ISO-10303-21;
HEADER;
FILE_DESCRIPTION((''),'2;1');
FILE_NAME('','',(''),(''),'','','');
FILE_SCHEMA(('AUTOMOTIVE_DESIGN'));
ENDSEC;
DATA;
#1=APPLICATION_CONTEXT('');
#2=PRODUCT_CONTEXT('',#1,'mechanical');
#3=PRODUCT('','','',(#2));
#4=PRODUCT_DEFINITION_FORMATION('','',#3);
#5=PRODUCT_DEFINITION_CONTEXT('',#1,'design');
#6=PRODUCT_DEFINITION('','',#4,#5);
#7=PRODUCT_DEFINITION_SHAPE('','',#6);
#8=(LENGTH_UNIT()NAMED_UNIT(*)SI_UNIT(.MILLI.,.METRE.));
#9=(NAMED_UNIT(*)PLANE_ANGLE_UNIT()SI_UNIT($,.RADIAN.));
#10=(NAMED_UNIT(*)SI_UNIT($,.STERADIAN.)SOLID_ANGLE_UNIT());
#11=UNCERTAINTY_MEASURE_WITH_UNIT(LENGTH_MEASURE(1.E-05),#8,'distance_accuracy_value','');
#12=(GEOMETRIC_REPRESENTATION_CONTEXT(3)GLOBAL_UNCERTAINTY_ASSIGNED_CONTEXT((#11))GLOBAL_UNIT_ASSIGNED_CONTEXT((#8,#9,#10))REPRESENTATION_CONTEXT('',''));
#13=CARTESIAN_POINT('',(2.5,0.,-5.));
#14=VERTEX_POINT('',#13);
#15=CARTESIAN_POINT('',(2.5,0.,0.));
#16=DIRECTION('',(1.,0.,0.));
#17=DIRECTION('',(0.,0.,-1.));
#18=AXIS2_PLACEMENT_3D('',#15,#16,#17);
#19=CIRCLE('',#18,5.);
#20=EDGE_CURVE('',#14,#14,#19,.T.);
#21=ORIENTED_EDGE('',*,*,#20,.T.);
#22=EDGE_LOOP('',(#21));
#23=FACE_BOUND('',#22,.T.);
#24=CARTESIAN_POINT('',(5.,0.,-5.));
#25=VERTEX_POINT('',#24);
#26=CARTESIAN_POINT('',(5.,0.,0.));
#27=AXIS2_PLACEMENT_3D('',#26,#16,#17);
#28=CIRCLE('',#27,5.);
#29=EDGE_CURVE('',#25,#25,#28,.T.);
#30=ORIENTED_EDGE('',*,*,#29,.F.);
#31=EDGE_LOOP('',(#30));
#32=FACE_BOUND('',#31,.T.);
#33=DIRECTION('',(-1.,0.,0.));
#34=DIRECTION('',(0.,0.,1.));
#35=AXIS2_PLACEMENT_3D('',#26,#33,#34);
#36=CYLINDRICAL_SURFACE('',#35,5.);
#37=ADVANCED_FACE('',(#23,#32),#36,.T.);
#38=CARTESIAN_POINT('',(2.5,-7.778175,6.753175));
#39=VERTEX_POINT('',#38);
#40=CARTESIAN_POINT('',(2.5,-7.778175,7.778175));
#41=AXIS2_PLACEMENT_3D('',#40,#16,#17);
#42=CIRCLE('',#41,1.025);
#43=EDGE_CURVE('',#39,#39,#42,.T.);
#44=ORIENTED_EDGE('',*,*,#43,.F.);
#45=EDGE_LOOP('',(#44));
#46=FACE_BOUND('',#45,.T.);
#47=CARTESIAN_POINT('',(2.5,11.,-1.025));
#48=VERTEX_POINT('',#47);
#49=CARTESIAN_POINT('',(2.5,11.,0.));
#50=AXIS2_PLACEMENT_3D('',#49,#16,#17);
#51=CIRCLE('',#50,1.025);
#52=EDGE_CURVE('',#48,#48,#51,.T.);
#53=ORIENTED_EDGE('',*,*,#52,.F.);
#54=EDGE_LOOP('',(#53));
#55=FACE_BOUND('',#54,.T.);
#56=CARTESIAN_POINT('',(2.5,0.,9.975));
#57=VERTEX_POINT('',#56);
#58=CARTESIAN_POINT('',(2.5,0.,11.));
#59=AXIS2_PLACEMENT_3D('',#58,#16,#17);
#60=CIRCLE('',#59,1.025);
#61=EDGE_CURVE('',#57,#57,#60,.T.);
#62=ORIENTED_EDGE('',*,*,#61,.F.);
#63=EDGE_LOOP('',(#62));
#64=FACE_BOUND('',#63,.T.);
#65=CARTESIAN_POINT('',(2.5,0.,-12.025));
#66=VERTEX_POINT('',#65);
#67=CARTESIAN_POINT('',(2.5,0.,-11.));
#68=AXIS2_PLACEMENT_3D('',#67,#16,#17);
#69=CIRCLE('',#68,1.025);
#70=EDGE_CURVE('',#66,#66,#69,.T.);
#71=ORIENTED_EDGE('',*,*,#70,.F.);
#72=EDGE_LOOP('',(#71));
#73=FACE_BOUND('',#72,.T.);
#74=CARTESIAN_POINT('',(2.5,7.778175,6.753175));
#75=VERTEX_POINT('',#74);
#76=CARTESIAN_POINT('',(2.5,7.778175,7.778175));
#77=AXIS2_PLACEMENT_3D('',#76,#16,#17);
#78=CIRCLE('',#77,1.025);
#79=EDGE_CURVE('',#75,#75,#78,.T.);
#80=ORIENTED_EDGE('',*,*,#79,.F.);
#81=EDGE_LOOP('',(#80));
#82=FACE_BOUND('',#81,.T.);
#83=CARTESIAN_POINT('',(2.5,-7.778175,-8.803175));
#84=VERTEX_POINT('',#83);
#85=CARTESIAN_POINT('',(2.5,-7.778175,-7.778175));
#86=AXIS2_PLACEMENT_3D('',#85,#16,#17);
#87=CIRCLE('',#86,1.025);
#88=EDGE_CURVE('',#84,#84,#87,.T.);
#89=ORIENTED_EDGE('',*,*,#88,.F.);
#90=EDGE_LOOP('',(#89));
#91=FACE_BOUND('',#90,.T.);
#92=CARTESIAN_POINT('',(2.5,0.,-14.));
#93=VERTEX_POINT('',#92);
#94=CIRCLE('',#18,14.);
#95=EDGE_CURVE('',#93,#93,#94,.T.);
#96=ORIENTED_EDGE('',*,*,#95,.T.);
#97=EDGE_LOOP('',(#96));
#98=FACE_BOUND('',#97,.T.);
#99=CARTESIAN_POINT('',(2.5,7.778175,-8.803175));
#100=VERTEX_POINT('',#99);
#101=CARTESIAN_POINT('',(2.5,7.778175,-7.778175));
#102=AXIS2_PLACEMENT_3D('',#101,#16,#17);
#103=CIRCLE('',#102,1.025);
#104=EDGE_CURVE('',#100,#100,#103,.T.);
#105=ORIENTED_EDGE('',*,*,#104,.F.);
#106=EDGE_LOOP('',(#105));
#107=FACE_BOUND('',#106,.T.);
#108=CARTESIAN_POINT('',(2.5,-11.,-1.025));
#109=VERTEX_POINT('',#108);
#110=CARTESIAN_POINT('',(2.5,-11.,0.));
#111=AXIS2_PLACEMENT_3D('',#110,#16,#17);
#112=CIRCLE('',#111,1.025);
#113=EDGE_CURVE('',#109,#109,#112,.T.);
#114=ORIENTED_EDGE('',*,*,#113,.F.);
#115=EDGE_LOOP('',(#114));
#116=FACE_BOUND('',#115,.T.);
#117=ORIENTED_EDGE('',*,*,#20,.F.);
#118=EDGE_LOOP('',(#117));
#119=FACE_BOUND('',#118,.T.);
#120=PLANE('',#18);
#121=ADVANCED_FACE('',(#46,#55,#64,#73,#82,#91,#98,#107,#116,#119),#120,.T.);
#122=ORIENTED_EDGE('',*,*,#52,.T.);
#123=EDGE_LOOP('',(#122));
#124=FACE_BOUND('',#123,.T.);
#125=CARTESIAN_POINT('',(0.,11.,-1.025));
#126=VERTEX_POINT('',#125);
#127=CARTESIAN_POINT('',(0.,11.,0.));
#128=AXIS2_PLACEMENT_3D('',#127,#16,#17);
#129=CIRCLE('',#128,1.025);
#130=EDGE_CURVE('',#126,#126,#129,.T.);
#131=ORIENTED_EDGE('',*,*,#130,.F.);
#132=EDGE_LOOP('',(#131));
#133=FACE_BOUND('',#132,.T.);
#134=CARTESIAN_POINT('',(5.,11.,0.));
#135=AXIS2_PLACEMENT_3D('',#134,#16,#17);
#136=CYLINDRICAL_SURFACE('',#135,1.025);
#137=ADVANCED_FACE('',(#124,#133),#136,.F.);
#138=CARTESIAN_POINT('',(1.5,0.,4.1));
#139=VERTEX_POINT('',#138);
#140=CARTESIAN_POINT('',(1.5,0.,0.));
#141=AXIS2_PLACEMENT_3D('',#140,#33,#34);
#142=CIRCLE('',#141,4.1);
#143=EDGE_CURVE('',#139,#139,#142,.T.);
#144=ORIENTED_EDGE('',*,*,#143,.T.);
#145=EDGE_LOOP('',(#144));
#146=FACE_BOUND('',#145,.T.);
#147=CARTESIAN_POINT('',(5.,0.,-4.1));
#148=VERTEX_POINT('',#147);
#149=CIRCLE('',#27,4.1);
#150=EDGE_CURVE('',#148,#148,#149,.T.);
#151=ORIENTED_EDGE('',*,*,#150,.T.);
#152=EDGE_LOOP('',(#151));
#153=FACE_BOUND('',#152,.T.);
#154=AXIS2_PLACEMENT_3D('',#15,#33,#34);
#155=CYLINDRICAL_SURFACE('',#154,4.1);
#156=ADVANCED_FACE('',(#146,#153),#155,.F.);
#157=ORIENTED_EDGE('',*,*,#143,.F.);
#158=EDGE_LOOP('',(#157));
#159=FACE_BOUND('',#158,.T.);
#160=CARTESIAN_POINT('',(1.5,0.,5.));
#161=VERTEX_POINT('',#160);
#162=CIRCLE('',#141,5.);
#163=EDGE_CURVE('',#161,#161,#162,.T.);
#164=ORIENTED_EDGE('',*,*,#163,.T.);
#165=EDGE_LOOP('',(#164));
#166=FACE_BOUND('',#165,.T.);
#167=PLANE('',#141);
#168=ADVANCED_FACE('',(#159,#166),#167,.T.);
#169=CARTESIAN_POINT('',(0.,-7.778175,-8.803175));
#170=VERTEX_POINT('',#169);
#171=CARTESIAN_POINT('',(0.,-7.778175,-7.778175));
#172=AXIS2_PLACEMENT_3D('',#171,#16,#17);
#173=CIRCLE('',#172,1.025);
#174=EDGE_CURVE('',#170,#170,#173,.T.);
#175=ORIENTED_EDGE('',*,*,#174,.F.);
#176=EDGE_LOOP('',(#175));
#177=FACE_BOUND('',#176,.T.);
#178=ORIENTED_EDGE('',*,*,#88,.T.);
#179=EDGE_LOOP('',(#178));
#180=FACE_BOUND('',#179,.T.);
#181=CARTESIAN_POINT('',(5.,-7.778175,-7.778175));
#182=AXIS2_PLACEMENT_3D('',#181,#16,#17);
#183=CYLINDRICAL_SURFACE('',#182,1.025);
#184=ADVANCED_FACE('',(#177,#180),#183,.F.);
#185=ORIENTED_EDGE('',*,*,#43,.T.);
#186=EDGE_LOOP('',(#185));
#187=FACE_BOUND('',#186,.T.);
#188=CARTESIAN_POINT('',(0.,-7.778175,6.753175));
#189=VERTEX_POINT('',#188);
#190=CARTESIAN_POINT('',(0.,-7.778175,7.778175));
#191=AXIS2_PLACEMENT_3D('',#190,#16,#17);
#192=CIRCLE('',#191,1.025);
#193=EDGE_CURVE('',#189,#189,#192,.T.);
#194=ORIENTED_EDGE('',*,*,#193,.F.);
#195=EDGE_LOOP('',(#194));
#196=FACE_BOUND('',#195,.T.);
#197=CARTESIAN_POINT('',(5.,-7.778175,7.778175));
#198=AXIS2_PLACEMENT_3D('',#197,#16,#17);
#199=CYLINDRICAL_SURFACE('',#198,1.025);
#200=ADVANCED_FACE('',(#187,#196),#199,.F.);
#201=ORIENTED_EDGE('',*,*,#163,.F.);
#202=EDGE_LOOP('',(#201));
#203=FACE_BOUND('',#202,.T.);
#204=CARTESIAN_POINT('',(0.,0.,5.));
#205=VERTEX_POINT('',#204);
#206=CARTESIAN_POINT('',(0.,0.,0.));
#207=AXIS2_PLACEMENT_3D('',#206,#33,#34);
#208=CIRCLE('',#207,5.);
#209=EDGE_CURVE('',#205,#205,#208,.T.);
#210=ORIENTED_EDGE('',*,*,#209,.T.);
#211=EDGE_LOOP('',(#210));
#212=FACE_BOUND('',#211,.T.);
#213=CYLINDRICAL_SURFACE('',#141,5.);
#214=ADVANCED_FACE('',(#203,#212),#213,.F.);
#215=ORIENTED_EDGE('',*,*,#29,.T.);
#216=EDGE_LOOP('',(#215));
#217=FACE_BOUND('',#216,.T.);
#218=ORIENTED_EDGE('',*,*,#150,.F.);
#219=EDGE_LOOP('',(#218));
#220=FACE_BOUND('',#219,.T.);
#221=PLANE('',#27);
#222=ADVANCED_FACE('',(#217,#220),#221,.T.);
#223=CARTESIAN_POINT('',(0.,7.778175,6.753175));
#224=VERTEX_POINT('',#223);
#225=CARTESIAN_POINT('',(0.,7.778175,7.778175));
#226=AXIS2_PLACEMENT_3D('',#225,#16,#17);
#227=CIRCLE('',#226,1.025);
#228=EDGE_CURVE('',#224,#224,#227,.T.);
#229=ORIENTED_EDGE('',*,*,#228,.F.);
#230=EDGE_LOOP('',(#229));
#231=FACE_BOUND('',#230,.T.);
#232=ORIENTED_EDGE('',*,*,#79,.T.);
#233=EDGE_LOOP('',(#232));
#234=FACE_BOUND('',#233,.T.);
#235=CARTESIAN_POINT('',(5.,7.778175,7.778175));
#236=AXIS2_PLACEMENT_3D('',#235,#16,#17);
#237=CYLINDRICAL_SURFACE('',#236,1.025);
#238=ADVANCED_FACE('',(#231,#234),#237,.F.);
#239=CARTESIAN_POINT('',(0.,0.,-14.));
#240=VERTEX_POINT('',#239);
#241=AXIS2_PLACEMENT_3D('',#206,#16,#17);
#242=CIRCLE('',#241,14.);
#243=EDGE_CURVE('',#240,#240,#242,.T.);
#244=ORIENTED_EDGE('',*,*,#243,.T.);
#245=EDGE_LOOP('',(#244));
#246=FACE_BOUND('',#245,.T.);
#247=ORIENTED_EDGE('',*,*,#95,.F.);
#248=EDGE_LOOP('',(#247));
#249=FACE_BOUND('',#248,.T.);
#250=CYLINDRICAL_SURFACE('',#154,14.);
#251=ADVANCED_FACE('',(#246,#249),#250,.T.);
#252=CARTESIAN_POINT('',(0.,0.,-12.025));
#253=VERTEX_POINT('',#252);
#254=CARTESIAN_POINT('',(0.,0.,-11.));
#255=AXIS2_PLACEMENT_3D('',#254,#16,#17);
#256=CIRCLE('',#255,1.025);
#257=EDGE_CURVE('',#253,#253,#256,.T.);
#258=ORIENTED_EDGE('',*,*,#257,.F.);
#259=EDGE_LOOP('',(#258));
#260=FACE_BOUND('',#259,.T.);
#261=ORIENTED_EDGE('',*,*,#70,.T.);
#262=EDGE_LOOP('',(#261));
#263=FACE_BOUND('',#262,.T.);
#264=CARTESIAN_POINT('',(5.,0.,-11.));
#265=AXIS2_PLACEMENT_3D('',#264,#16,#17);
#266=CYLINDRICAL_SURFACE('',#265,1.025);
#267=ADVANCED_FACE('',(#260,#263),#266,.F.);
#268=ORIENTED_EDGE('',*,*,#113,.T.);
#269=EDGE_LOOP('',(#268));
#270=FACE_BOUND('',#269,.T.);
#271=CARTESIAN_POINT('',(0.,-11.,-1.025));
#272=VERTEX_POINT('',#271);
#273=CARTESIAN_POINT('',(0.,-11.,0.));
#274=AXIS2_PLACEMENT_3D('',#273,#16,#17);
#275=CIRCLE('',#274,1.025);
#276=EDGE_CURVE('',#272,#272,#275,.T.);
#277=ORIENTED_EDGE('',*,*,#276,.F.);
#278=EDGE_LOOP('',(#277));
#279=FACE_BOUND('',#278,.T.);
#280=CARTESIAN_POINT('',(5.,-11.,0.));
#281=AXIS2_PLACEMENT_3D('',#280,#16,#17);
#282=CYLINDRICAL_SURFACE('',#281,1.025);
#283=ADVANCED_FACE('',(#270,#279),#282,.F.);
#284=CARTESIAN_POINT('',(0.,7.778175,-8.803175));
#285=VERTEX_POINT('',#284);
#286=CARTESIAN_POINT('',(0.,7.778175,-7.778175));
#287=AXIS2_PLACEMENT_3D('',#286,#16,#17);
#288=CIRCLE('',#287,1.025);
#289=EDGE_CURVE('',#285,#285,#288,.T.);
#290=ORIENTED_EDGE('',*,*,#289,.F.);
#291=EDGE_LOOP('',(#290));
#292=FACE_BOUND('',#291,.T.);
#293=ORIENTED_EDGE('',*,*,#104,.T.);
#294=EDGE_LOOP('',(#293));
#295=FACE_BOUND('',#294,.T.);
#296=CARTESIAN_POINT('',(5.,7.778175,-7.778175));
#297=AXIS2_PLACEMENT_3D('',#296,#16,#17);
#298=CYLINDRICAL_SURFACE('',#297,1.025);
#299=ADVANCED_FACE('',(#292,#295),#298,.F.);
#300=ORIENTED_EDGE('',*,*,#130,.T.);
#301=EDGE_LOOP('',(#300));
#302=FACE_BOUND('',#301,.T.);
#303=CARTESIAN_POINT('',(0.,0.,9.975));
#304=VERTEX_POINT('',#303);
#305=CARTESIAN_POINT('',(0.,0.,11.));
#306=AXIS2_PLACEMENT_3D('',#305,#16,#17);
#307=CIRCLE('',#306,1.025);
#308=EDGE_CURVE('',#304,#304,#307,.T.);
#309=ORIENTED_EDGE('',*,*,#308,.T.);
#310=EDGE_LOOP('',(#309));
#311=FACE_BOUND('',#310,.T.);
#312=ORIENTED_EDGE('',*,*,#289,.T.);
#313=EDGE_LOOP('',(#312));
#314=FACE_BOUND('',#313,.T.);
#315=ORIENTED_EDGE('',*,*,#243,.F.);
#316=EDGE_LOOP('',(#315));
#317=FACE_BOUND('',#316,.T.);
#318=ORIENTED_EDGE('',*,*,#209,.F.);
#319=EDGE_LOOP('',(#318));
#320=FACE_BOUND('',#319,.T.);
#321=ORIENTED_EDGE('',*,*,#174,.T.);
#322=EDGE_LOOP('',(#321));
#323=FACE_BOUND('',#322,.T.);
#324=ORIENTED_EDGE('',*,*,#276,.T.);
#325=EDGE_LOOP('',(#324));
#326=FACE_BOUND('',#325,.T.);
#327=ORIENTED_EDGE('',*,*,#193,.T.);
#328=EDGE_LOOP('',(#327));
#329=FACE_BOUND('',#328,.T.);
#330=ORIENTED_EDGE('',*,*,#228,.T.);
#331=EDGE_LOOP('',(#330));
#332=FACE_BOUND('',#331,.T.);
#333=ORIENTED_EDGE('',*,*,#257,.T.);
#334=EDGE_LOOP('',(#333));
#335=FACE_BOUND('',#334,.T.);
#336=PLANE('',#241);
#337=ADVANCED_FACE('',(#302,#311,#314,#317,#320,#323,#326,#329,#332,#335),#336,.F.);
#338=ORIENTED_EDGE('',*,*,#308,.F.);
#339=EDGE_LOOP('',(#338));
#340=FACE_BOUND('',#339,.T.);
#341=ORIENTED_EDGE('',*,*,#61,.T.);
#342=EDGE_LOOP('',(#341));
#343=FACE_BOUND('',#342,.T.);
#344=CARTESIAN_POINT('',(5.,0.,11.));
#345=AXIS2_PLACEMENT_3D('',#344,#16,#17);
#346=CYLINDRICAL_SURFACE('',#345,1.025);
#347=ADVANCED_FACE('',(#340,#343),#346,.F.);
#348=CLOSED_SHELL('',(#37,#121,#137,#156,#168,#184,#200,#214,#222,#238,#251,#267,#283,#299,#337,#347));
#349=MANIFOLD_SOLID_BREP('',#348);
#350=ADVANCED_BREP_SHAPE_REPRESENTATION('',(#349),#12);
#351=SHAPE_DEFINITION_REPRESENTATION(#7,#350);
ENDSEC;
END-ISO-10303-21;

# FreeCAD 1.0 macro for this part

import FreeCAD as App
import Part
import Sketcher

doc = App.newDocument("Part")
body = doc.addObject("PartDesign::Body", "Body")

# Sketch on YZ plane
sketch1 = body.newObject("Sketcher::SketchObject", "Sketch")
sketch1.AttachmentSupport = (doc.getObject("YZ_Plane"), [""])
sketch1.MapMode = "FlatFace"
sketch1.addGeometry([
    Part.Circle(App.Vector(0, 0, 0), App.Vector(0, 0, 1), 14),
    Part.Circle(App.Vector(0, 0, 0), App.Vector(0, 0, 1), 4.1),
], False)
sketch1.addConstraint([
    Sketcher.Constraint("Coincident", 0, 3, -1, 1),
    Sketcher.Constraint("Coincident", 1, 3, -1, 1),
    Sketcher.Constraint("Diameter", 0, 28.0),
    Sketcher.Constraint("Diameter", 1, 8.2),
])
pad1 = body.newObject("PartDesign::Pad", "Pad")
pad1.Profile = sketch1
pad1.Length = 2.5

# Sketch on YZ plane
sketch2 = body.newObject("Sketcher::SketchObject", "Sketch001")
sketch2.AttachmentSupport = (doc.getObject("YZ_Plane"), [""])
sketch2.MapMode = "FlatFace"
sketch2.AttachmentOffset = App.Placement(App.Vector(0, 0, 2.5), App.Rotation())
sketch2.addGeometry([
    Part.Circle(App.Vector(0, 0, 0), App.Vector(0, 0, 1), 5),
    Part.Circle(App.Vector(0, 0, 0), App.Vector(0, 0, 1), 4.1),
], False)
sketch2.addConstraint([
    Sketcher.Constraint("Coincident", 0, 3, -1, 1),
    Sketcher.Constraint("Coincident", 1, 3, -1, 1),
    Sketcher.Constraint("Diameter", 0, 10.0),
    Sketcher.Constraint("Diameter", 1, 8.2),
])
pad2 = body.newObject("PartDesign::Pad", "Pad001")
pad2.Profile = sketch2
pad2.Length = 2.5

# Sketch on YZ plane
sketch3 = body.newObject("Sketcher::SketchObject", "Sketch002")
sketch3.AttachmentSupport = (doc.getObject("YZ_Plane"), [""])
sketch3.MapMode = "FlatFace"
sketch3.AttachmentOffset = App.Placement(App.Vector(0, 0, 5), App.Rotation())
sketch3.addGeometry([
    Part.Circle(App.Vector(11, 0, 0), App.Vector(0, 0, 1), 1),  # 0
    Part.Circle(App.Vector(7.8, -7.8, 0), App.Vector(0, 0, 1), 1),  # 1
    Part.Circle(App.Vector(0, -11, 0), App.Vector(0, 0, 1), 1),  # 2
    Part.Circle(App.Vector(-7.8, -7.8, 0), App.Vector(0, 0, 1), 1),  # 3
    Part.Circle(App.Vector(-11, 0, 0), App.Vector(0, 0, 1), 1),  # 4
    Part.Circle(App.Vector(-7.8, 7.8, 0), App.Vector(0, 0, 1), 1),  # 5
    Part.Circle(App.Vector(0, 11, 0), App.Vector(0, 0, 1), 1),  # 6
    Part.Circle(App.Vector(7.8, 7.8, 0), App.Vector(0, 0, 1), 1),  # 7
    Part.Circle(App.Vector(0, 0, 0), App.Vector(0, 0, 1), 1),  # 8
], False)
sketch3.addConstraint([
    Sketcher.Constraint("Coincident", 8, 3, -1, 1),
    Sketcher.Constraint("Equal", 0, 1),
    Sketcher.Constraint("Equal", 1, 2),
    Sketcher.Constraint("Equal", 2, 3),
    Sketcher.Constraint("Equal", 3, 4),
    Sketcher.Constraint("Equal", 4, 5),
    Sketcher.Constraint("Equal", 5, 6),
    Sketcher.Constraint("Equal", 6, 7),
    Sketcher.Constraint("Equal", 7, 8),
    Sketcher.Constraint("Symmetric", 0, 3, 4, 3, -1, 1),
    Sketcher.Constraint("Symmetric", 1, 3, 5, 3, -1, 1),
    Sketcher.Constraint("Symmetric", 2, 3, 6, 3, -1, 1),
    Sketcher.Constraint("Symmetric", 3, 3, 7, 3, -1, 1),
    Sketcher.Constraint("Symmetric", 1, 3, 3, 3, -2),
    Sketcher.Constraint("PointOnObject", 0, 3, -1),
    Sketcher.Constraint("PointOnObject", 2, 3, -2),
    Sketcher.Constraint("Diameter", 0, 2.05),
    Sketcher.Constraint("DistanceX", -1, 1, 0, 3, 11.0),
    Sketcher.Constraint("DistanceY", 2, 3, -1, 1, 11.0),
    Sketcher.Constraint("DistanceX", 3, 3, 1, 3, 15.556349),
    Sketcher.Constraint("DistanceY", 3, 3, 5, 3, 15.556349),
])
doc.recompute()
hole = body.newObject("PartDesign::Hole", "Hole")
hole.Profile = sketch3
hole.ThreadType = "None"
hole.Diameter = 2.05
hole.DepthType = "ThroughAll"

# Sketch on YZ plane
sketch4 = body.newObject("Sketcher::SketchObject", "Sketch003")
sketch4.AttachmentSupport = (doc.getObject("YZ_Plane"), [""])
sketch4.MapMode = "FlatFace"
sketch4.addGeometry(Part.Circle(App.Vector(0, 0, 0), App.Vector(0, 0, 1), 5), False)
sketch4.addConstraint([
    Sketcher.Constraint("Coincident", 0, 3, -1, 1),
    Sketcher.Constraint("Diameter", 0, 10.0),
])
pocket1 = body.newObject("PartDesign::Pocket", "Pocket")
pocket1.Profile = sketch4
pocket1.Length = 1.5
pocket1.Reversed = True

doc.recompute()
